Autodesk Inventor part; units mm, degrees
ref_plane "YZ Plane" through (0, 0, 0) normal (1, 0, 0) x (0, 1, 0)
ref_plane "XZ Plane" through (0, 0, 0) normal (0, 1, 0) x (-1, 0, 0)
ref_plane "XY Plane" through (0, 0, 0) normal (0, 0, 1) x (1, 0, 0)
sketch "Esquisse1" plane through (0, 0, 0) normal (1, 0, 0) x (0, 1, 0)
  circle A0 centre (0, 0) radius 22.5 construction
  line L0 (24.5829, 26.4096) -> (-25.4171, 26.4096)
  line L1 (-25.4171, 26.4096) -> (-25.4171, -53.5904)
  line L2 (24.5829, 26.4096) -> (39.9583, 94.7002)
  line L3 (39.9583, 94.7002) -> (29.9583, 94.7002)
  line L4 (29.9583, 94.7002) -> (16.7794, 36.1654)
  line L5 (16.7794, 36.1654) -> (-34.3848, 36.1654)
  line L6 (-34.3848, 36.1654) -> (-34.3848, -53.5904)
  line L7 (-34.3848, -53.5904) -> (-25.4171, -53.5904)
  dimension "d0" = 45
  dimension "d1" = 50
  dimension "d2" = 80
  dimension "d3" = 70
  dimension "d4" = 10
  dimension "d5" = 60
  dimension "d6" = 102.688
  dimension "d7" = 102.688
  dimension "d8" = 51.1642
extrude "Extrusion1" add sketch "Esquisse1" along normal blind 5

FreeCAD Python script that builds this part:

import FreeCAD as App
import Part
import Sketcher
from FreeCAD import Vector
Q = App.Units.Quantity

doc = App.newDocument("Part")
params = doc.addObject("Spreadsheet::Sheet", "Params")
for row, (alias, value) in enumerate([
    ("sketch1_width", "50 mm"),
    ("sketch1_width2", "10 mm"),
    ("sketch1_height", "80 mm"),
    ("sketch1_length", "70 mm"),
    ("sketch1_length2", "60 mm"),
    ("pad1_length", "5 mm"),
], start=1):
    params.set(f"A{row}", alias)
    params.set(f"B{row}", "=" + value)
    params.setAlias(f"B{row}", alias)

body = doc.addObject("PartDesign::Body", "Body")

sketch1 = body.newObject("Sketcher::SketchObject", "Sketch")
sketch1.AttachmentSupport = (doc.getObject("YZ_Plane"), [""])
sketch1.MapMode = "FlatFace"
sketch1.addGeometry([
    Part.LineSegment(Vector(-25.4171, 26.4096, 0), Vector(24.5829, 26.4096, 0)),
    Part.LineSegment(Vector(24.5829, 26.4096, 0), Vector(39.9583, 94.7002, 0)),
    Part.LineSegment(Vector(39.9583, 94.7002, 0), Vector(29.9583, 94.7002, 0)),
    Part.LineSegment(Vector(29.9583, 94.7002, 0), Vector(16.7794, 36.1654, 0)),
    Part.LineSegment(Vector(16.7794, 36.1654, 0), Vector(-34.3848, 36.1654, 0)),
    Part.LineSegment(Vector(-34.3848, 36.1654, 0), Vector(-34.3848, -53.5904, 0)),
    Part.LineSegment(Vector(-34.3848, -53.5904, 0), Vector(-25.4171, -53.5904, 0)),
    Part.LineSegment(Vector(-25.4171, -53.5904, 0), Vector(-25.4171, 26.4096, 0)),
], False)
sketch1.addConstraint([
    Sketcher.Constraint("Coincident", 0, 2, 1, 1),
    Sketcher.Constraint("Coincident", 1, 2, 2, 1),
    Sketcher.Constraint("Coincident", 2, 2, 3, 1),
    Sketcher.Constraint("Coincident", 3, 2, 4, 1),
    Sketcher.Constraint("Coincident", 4, 2, 5, 1),
    Sketcher.Constraint("Coincident", 5, 2, 6, 1),
    Sketcher.Constraint("Coincident", 6, 2, 7, 1),
    Sketcher.Constraint("Coincident", 7, 2, 0, 1),
    Sketcher.Constraint("Horizontal", 0),
    Sketcher.Constraint("Horizontal", 2),
    Sketcher.Constraint("Horizontal", 4),
    Sketcher.Constraint("Vertical", 5),
    Sketcher.Constraint("Horizontal", 6),
    Sketcher.Constraint("Vertical", 7),
    Sketcher.Constraint("Parallel", 1, 3),
    Sketcher.Constraint("DistanceX", 0, 1, 0, 2, Q("50 mm")),
    Sketcher.Constraint("DistanceX", 2, 2, 2, 1, Q("10 mm")),
    Sketcher.Constraint("DistanceY", 7, 1, 7, 2, Q("80 mm")),
    Sketcher.Constraint("Distance", 1, Q("70 mm")),
    Sketcher.Constraint("Distance", 3, Q("60 mm")),
    Sketcher.Constraint("DistanceX", 4, 2, 4, 1, Q("51.1642 mm")),
    Sketcher.Constraint("DistanceX", 6, 1, 6, 2, Q("8.9677 mm")),
    Sketcher.Constraint("DistanceX", -1, 1, 0, 2, Q("24.583 mm")),
    Sketcher.Constraint("DistanceY", -1, 1, 0, 2, Q("26.4096 mm")),
])
sketch1.setExpression("Constraints[15]", "Params.sketch1_width")
sketch1.setExpression("Constraints[16]", "Params.sketch1_width2")
sketch1.setExpression("Constraints[17]", "Params.sketch1_height")
sketch1.setExpression("Constraints[18]", "Params.sketch1_length")
sketch1.setExpression("Constraints[19]", "Params.sketch1_length2")
pad1 = body.newObject("PartDesign::Pad", "Pad")
pad1.Profile = sketch1
pad1.setExpression("Length", "Params.pad1_length")

doc.recompute()
